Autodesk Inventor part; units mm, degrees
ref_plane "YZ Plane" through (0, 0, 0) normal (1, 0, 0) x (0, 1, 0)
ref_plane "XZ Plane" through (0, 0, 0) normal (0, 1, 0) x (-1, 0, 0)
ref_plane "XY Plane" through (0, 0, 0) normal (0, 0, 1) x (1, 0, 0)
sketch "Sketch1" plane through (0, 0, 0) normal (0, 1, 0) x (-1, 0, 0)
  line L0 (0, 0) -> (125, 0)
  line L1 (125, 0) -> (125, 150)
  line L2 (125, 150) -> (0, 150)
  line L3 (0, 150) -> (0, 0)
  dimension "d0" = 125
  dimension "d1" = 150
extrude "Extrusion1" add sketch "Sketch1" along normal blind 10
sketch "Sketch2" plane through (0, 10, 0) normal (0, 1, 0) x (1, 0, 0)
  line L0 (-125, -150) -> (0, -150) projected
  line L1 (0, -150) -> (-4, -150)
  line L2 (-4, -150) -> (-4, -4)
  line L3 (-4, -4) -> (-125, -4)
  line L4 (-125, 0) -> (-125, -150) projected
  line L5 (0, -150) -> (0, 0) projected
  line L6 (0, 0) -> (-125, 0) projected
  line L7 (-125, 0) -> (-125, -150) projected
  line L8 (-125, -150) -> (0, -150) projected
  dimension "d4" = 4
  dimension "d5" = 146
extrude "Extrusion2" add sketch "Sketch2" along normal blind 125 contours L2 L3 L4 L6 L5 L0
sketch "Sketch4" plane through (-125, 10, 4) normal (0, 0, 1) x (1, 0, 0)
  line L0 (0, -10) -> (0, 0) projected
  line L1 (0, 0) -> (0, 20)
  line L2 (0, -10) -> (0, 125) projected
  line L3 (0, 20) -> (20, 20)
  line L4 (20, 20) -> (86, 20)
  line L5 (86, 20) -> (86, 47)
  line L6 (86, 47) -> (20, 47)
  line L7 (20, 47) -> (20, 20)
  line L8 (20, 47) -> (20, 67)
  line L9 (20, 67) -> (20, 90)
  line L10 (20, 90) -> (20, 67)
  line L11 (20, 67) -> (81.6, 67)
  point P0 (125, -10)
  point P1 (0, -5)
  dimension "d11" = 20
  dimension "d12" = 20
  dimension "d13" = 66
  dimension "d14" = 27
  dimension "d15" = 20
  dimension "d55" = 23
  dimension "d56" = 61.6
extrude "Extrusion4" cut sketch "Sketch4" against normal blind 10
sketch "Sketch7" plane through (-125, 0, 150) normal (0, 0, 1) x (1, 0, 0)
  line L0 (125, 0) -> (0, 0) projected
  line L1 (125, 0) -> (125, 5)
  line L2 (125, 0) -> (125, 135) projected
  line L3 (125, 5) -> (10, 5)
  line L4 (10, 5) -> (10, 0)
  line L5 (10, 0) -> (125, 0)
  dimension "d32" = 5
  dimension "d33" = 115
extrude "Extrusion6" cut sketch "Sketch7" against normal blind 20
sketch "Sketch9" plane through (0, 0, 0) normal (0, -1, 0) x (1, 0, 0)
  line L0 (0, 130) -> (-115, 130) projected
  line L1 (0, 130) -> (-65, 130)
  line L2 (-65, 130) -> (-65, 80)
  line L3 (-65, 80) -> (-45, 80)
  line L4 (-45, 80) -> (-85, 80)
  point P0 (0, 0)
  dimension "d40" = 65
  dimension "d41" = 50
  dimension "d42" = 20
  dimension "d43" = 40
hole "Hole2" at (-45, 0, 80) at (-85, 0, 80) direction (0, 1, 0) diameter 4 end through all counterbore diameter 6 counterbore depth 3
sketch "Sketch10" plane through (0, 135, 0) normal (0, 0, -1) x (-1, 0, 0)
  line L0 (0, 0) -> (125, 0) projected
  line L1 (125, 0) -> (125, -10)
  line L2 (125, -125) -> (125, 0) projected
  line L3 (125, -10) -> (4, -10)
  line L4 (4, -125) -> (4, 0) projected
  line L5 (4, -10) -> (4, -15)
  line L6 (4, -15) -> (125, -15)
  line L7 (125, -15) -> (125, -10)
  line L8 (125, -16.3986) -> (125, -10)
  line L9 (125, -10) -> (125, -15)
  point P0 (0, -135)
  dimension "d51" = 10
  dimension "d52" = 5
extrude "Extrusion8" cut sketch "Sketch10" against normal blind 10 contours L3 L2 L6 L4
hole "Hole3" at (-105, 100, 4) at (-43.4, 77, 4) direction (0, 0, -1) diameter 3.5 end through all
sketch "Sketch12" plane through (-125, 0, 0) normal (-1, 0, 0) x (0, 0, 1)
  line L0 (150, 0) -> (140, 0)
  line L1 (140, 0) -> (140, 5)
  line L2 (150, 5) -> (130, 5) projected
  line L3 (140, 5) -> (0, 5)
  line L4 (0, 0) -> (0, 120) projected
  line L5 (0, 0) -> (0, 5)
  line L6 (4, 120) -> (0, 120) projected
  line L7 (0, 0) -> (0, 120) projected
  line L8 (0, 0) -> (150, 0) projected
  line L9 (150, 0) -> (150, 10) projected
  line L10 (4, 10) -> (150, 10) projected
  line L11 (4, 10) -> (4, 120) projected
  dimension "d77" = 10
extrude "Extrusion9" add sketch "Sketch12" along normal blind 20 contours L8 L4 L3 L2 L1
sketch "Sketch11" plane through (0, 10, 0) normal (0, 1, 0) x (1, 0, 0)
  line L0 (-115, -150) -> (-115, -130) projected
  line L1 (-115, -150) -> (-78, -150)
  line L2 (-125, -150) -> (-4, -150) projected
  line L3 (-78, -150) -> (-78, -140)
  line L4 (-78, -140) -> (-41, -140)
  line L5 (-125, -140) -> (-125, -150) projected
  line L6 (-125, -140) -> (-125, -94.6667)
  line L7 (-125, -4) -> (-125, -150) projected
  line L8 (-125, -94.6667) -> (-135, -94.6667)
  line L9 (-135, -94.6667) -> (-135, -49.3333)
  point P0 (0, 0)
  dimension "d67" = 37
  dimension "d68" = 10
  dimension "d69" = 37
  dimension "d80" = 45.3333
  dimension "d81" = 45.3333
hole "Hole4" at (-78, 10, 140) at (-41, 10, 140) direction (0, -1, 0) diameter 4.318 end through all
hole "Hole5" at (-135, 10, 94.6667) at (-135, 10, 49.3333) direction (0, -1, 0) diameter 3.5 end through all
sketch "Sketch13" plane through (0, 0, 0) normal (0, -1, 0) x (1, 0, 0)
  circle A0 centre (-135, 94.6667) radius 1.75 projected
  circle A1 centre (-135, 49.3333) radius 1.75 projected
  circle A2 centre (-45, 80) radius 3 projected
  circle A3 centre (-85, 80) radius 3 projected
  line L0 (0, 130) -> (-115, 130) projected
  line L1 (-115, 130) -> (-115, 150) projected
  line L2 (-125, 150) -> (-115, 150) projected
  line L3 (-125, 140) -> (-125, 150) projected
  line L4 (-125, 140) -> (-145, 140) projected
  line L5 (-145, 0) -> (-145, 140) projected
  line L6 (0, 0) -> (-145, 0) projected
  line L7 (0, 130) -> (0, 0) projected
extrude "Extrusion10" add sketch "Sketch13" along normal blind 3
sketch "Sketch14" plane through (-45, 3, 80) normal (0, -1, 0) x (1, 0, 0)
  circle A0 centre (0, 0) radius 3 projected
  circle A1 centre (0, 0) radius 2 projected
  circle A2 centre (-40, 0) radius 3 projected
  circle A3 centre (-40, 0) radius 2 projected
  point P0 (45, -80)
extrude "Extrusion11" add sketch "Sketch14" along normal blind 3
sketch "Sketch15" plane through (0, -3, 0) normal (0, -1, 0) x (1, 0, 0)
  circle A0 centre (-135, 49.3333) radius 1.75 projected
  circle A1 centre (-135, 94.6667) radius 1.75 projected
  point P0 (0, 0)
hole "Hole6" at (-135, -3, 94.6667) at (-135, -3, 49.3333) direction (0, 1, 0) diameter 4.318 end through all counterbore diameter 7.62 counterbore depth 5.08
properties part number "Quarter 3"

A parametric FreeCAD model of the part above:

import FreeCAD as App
import Part
import Sketcher


def add_polygon(sketch, points):
    """Adds a closed chain of lines whose ends are joined by coincident constraints."""
    first, n = sketch.GeometryCount, len(points)
    for a, b in zip(points, points[1:] + points[:1]):
        sketch.addGeometry(Part.LineSegment(App.Vector(*a, 0), App.Vector(*b, 0)), False)
    for i in range(n):
        sketch.addConstraint(Sketcher.Constraint("Coincident", first + i, 2, first + (i + 1) % n, 1))

doc = App.newDocument("Part")
body = doc.addObject("PartDesign::Body", "Body")

# Sketch on XZ plane
sketch1 = body.newObject("Sketcher::SketchObject", "Sketch")
sketch1.AttachmentSupport = (doc.getObject("XZ_Plane"), [""])
sketch1.MapMode = "FlatFace"
add_polygon(sketch1, [(0, 150), (0, 0), (-125, 0), (-125, 150)])  # lines 0-3
sketch1.addConstraint(Sketcher.Constraint("Vertical", 0))
sketch1.addConstraint(Sketcher.Constraint("Horizontal", 1))
sketch1.addConstraint(Sketcher.Constraint("Vertical", 2))
sketch1.addConstraint(Sketcher.Constraint("Horizontal", 3))
sketch1.addConstraint(Sketcher.Constraint("Coincident", 0, 2, -1, 1))
sketch1.addConstraint(Sketcher.Constraint("DistanceX", 1, 2, 1, 1, 125.0))
sketch1.addConstraint(Sketcher.Constraint("DistanceY", 0, 2, 0, 1, 150.0))
pad1 = body.newObject("PartDesign::Pad", "Pad")
pad1.Profile = sketch1
pad1.Length = 10
pad1.Reversed = True

# Sketch on XZ plane
sketch2 = body.newObject("Sketcher::SketchObject", "Sketch001")
sketch2.AttachmentSupport = (doc.getObject("XZ_Plane"), [""])
sketch2.MapMode = "FlatFace"
sketch2.AttachmentOffset = App.Placement(App.Vector(0, 0, -10), App.Rotation())
add_polygon(sketch2, [(-4, 4), (-4, 150), (0, 150), (0, 0), (-125, 0), (-125, 4)])  # lines 0-5
sketch2.addConstraint(Sketcher.Constraint("Vertical", 0))
sketch2.addConstraint(Sketcher.Constraint("Horizontal", 1))
sketch2.addConstraint(Sketcher.Constraint("Vertical", 2))
sketch2.addConstraint(Sketcher.Constraint("Horizontal", 3))
sketch2.addConstraint(Sketcher.Constraint("Vertical", 4))
sketch2.addConstraint(Sketcher.Constraint("Horizontal", 5))
sketch2.addConstraint(Sketcher.Constraint("Coincident", 2, 2, -1, 1))
sketch2.addConstraint(Sketcher.Constraint("Equal", 1, 4))
sketch2.addConstraint(Sketcher.Constraint("DistanceX", 1, 1, 1, 2, 4.0))
sketch2.addConstraint(Sketcher.Constraint("DistanceY", 0, 1, 0, 2, 146.0))
sketch2.addConstraint(Sketcher.Constraint("DistanceX", 3, 2, 3, 1, 125.0))
pad2 = body.newObject("PartDesign::Pad", "Pad001")
pad2.Profile = sketch2
pad2.Length = 125
pad2.Reversed = True

# Sketch on XY plane
sketch3 = body.newObject("Sketcher::SketchObject", "Sketch002")
sketch3.AttachmentSupport = (doc.getObject("XY_Plane"), [""])
sketch3.MapMode = "FlatFace"
sketch3.AttachmentOffset = App.Placement(App.Vector(0, 0, 4), App.Rotation())
add_polygon(sketch3, [(-105, 57), (-105, 30), (-39, 30), (-39, 57)])  # lines 0-3
sketch3.addConstraint(Sketcher.Constraint("Vertical", 0))
sketch3.addConstraint(Sketcher.Constraint("Horizontal", 1))
sketch3.addConstraint(Sketcher.Constraint("Vertical", 2))
sketch3.addConstraint(Sketcher.Constraint("Horizontal", 3))
sketch3.addConstraint(Sketcher.Constraint("DistanceX", 1, 1, 1, 2, 66.0))
sketch3.addConstraint(Sketcher.Constraint("DistanceY", 0, 2, 0, 1, 27.0))
sketch3.addConstraint(Sketcher.Constraint("DistanceX", 0, 2, -1, 1, 105.0))
sketch3.addConstraint(Sketcher.Constraint("DistanceY", -1, 1, 0, 2, 30.0))
pocket1 = body.newObject("PartDesign::Pocket", "Pocket")
pocket1.Profile = sketch3
pocket1.Length = 10

# Sketch on XY plane
sketch4 = body.newObject("Sketcher::SketchObject", "Sketch003")
sketch4.AttachmentSupport = (doc.getObject("XY_Plane"), [""])
sketch4.MapMode = "FlatFace"
sketch4.AttachmentOffset = App.Placement(App.Vector(0, 0, 150), App.Rotation())
add_polygon(sketch4, [(-115, 0), (0, 0), (0, 5), (-115, 5)])  # lines 0-3
sketch4.addConstraint(Sketcher.Constraint("Horizontal", 0))
sketch4.addConstraint(Sketcher.Constraint("Vertical", 1))
sketch4.addConstraint(Sketcher.Constraint("Horizontal", 2))
sketch4.addConstraint(Sketcher.Constraint("Vertical", 3))
sketch4.addConstraint(Sketcher.Constraint("Coincident", 0, 2, -1, 1))
sketch4.addConstraint(Sketcher.Constraint("DistanceX", 0, 1, 0, 2, 115.0))
sketch4.addConstraint(Sketcher.Constraint("DistanceY", 1, 1, 1, 2, 5.0))
pocket2 = body.newObject("PartDesign::Pocket", "Pocket001")
pocket2.Profile = sketch4
pocket2.Length = 20

# Sketch on XZ plane
sketch5 = body.newObject("Sketcher::SketchObject", "Sketch004")
sketch5.AttachmentSupport = (doc.getObject("XZ_Plane"), [""])
sketch5.MapMode = "FlatFace"
sketch5.addGeometry(Part.Circle(App.Vector(-45, 80, 0), App.Vector(0, 0, 1), 2), False)
sketch5.addGeometry(Part.Circle(App.Vector(-85, 80, 0), App.Vector(0, 0, 1), 2), False)
sketch5.addConstraint(Sketcher.Constraint("Equal", 0, 1))
sketch5.addConstraint(Sketcher.Constraint("Horizontal", 0, 3, 1, 3))
sketch5.addConstraint(Sketcher.Constraint("Diameter", 0, 4.0))
sketch5.addConstraint(Sketcher.Constraint("DistanceX", 0, 3, -1, 1, 45.0))
sketch5.addConstraint(Sketcher.Constraint("DistanceY", -1, 1, 0, 3, 80.0))
sketch5.addConstraint(Sketcher.Constraint("DistanceX", 1, 3, -1, 1, 85.0))
doc.recompute()
hole = body.newObject("PartDesign::Hole", "Hole")
hole.Profile = sketch5
hole.ThreadType = "None"
hole.Diameter = 4
hole.DepthType = "ThroughAll"
hole.HoleCutType = "Counterbore"
hole.HoleCutDiameter = 6
hole.HoleCutDepth = 3

# Sketch on XY plane
sketch6 = body.newObject("Sketcher::SketchObject", "Sketch005")
sketch6.AttachmentSupport = (doc.getObject("XY_Plane"), [""])
sketch6.MapMode = "FlatFace"
add_polygon(sketch6, [(-125, 125), (-4, 125), (-4, 120), (-125, 120)])  # lines 0-3
sketch6.addConstraint(Sketcher.Constraint("Horizontal", 0))
sketch6.addConstraint(Sketcher.Constraint("Vertical", 1))
sketch6.addConstraint(Sketcher.Constraint("Horizontal", 2))
sketch6.addConstraint(Sketcher.Constraint("Vertical", 3))
sketch6.addConstraint(Sketcher.Constraint("DistanceY", 1, 2, 1, 1, 5.0))
sketch6.addConstraint(Sketcher.Constraint("DistanceX", 0, 1, 0, 2, 121.0))
sketch6.addConstraint(Sketcher.Constraint("DistanceX", 0, 2, -1, 1, 4.0))
sketch6.addConstraint(Sketcher.Constraint("DistanceY", -1, 1, 0, 2, 125.0))
pocket3 = body.newObject("PartDesign::Pocket", "Pocket002")
pocket3.Profile = sketch6
pocket3.Length = 10
pocket3.Reversed = True

# Sketch on XY plane
sketch7 = body.newObject("Sketcher::SketchObject", "Sketch006")
sketch7.AttachmentSupport = (doc.getObject("XY_Plane"), [""])
sketch7.MapMode = "FlatFace"
sketch7.AttachmentOffset = App.Placement(App.Vector(0, 0, 4), App.Rotation())
sketch7.addGeometry(Part.Circle(App.Vector(-105, 100, 0), App.Vector(0, 0, 1), 1.8), False)
sketch7.addGeometry(Part.Circle(App.Vector(-43.4, 77, 0), App.Vector(0, 0, 1), 1.8), False)
sketch7.addConstraint(Sketcher.Constraint("Equal", 0, 1))
sketch7.addConstraint(Sketcher.Constraint("Diameter", 0, 3.5))
sketch7.addConstraint(Sketcher.Constraint("DistanceX", 0, 3, -1, 1, 105.0))
sketch7.addConstraint(Sketcher.Constraint("DistanceY", -1, 1, 0, 3, 100.0))
sketch7.addConstraint(Sketcher.Constraint("DistanceY", -1, 1, 1, 3, 77.0))
sketch7.addConstraint(Sketcher.Constraint("DistanceX", 1, 3, -1, 1, 43.4))
doc.recompute()
hole2 = body.newObject("PartDesign::Hole", "Hole001")
hole2.Profile = sketch7
hole2.ThreadType = "None"
hole2.Diameter = 3.5
hole2.DepthType = "ThroughAll"

# Sketch on YZ plane
sketch8 = body.newObject("Sketcher::SketchObject", "Sketch007")
sketch8.AttachmentSupport = (doc.getObject("YZ_Plane"), [""])
sketch8.MapMode = "FlatFace"
sketch8.AttachmentOffset = App.Placement(App.Vector(0, 0, -125), App.Rotation())
add_polygon(sketch8, [(0, 0), (0, 140), (5, 140), (5, 0)])  # lines 0-3
sketch8.addConstraint(Sketcher.Constraint("Vertical", 0))
sketch8.addConstraint(Sketcher.Constraint("Horizontal", 1))
sketch8.addConstraint(Sketcher.Constraint("Vertical", 2))
sketch8.addConstraint(Sketcher.Constraint("Horizontal", 3))
sketch8.addConstraint(Sketcher.Constraint("Coincident", 3, 2, -1, 1))
sketch8.addConstraint(Sketcher.Constraint("DistanceX", 1, 1, 1, 2, 5.0))
sketch8.addConstraint(Sketcher.Constraint("DistanceY", 0, 1, 0, 2, 140.0))
pad3 = body.newObject("PartDesign::Pad", "Pad002")
pad3.Profile = sketch8
pad3.Length = 20
pad3.Reversed = True

# Sketch on XZ plane
sketch9 = body.newObject("Sketcher::SketchObject", "Sketch008")
sketch9.AttachmentSupport = (doc.getObject("XZ_Plane"), [""])
sketch9.MapMode = "FlatFace"
sketch9.AttachmentOffset = App.Placement(App.Vector(0, 0, -10), App.Rotation())
sketch9.addGeometry(Part.Circle(App.Vector(-78, 140, 0), App.Vector(0, 0, 1), 2.2), False)
sketch9.addGeometry(Part.Circle(App.Vector(-41, 140, 0), App.Vector(0, 0, 1), 2.2), False)
sketch9.addConstraint(Sketcher.Constraint("Equal", 0, 1))
sketch9.addConstraint(Sketcher.Constraint("Horizontal", 0, 3, 1, 3))
sketch9.addConstraint(Sketcher.Constraint("Diameter", 0, 4.318))
sketch9.addConstraint(Sketcher.Constraint("DistanceX", 0, 3, -1, 1, 78.0))
sketch9.addConstraint(Sketcher.Constraint("DistanceY", -1, 1, 0, 3, 140.0))
sketch9.addConstraint(Sketcher.Constraint("DistanceX", 1, 3, -1, 1, 41.0))
doc.recompute()
hole3 = body.newObject("PartDesign::Hole", "Hole002")
hole3.Profile = sketch9
hole3.ThreadType = "None"
hole3.Diameter = 4.318
hole3.DepthType = "ThroughAll"
hole3.Reversed = True

# Sketch on XZ plane
sketch10 = body.newObject("Sketcher::SketchObject", "Sketch009")
sketch10.AttachmentSupport = (doc.getObject("XZ_Plane"), [""])
sketch10.MapMode = "FlatFace"
sketch10.AttachmentOffset = App.Placement(App.Vector(0, 0, -10), App.Rotation())
sketch10.addGeometry(Part.Circle(App.Vector(-135, 94.7, 0), App.Vector(0, 0, 1), 1.8), False)
sketch10.addGeometry(Part.Circle(App.Vector(-135, 49.3, 0), App.Vector(0, 0, 1), 1.8), False)
sketch10.addConstraint(Sketcher.Constraint("Equal", 0, 1))
sketch10.addConstraint(Sketcher.Constraint("Vertical", 0, 3, 1, 3))
sketch10.addConstraint(Sketcher.Constraint("Diameter", 0, 3.5))
sketch10.addConstraint(Sketcher.Constraint("DistanceX", 0, 3, -1, 1, 135.0))
sketch10.addConstraint(Sketcher.Constraint("DistanceY", -1, 1, 0, 3, 94.6667))
sketch10.addConstraint(Sketcher.Constraint("DistanceY", -1, 1, 1, 3, 49.3333))
doc.recompute()
hole4 = body.newObject("PartDesign::Hole", "Hole003")
hole4.Profile = sketch10
hole4.ThreadType = "None"
hole4.Diameter = 3.5
hole4.DepthType = "ThroughAll"
hole4.Reversed = True

# Sketch on XZ plane
sketch11 = body.newObject("Sketcher::SketchObject", "Sketch010")
sketch11.AttachmentSupport = (doc.getObject("XZ_Plane"), [""])
sketch11.MapMode = "FlatFace"
add_polygon(sketch11, [(0, 0), (0, 130), (-115, 130), (-115, 150), (-125, 150), (-125, 140), (-145, 140), (-145, 0)])  # lines 0-7
sketch11.addGeometry(Part.Circle(App.Vector(-135, 49.3, 0), App.Vector(0, 0, 1), 1.8), False)  # 8
sketch11.addGeometry(Part.Circle(App.Vector(-135, 94.7, 0), App.Vector(0, 0, 1), 1.8), False)  # 9
sketch11.addGeometry(Part.Circle(App.Vector(-85, 80, 0), App.Vector(0, 0, 1), 3), False)  # 10
sketch11.addGeometry(Part.Circle(App.Vector(-45, 80, 0), App.Vector(0, 0, 1), 3), False)  # 11
sketch11.addConstraint(Sketcher.Constraint("Vertical", 0))
sketch11.addConstraint(Sketcher.Constraint("Horizontal", 1))
sketch11.addConstraint(Sketcher.Constraint("Vertical", 2))
sketch11.addConstraint(Sketcher.Constraint("Horizontal", 3))
sketch11.addConstraint(Sketcher.Constraint("Vertical", 4))
sketch11.addConstraint(Sketcher.Constraint("Horizontal", 5))
sketch11.addConstraint(Sketcher.Constraint("Vertical", 6))
sketch11.addConstraint(Sketcher.Constraint("Horizontal", 7))
sketch11.addConstraint(Sketcher.Constraint("Coincident", 7, 2, -1, 1))
sketch11.addConstraint(Sketcher.Constraint("Equal", 8, 9))
sketch11.addConstraint(Sketcher.Constraint("Equal", 10, 11))
sketch11.addConstraint(Sketcher.Constraint("Horizontal", 10, 3, 11, 3))
sketch11.addConstraint(Sketcher.Constraint("Vertical", 8, 3, 9, 3))
sketch11.addConstraint(Sketcher.Constraint("Equal", 5, 2))
sketch11.addConstraint(Sketcher.Constraint("Equal", 3, 4))
sketch11.addConstraint(Sketcher.Constraint("Diameter", 10, 6.0))
sketch11.addConstraint(Sketcher.Constraint("Diameter", 8, 3.5))
sketch11.addConstraint(Sketcher.Constraint("DistanceX", 1, 2, 1, 1, 115.0))
sketch11.addConstraint(Sketcher.Constraint("DistanceX", 3, 2, 3, 1, 10.0))
sketch11.addConstraint(Sketcher.Constraint("DistanceX", 5, 2, 5, 1, 20.0))
sketch11.addConstraint(Sketcher.Constraint("DistanceY", 0, 1, 0, 2, 130.0))
sketch11.addConstraint(Sketcher.Constraint("DistanceX", 8, 3, -1, 1, 135.0))
sketch11.addConstraint(Sketcher.Constraint("DistanceX", 10, 3, -1, 1, 85.0))
sketch11.addConstraint(Sketcher.Constraint("DistanceY", -1, 1, 10, 3, 80.0))
sketch11.addConstraint(Sketcher.Constraint("DistanceX", 11, 3, -1, 1, 45.0))
sketch11.addConstraint(Sketcher.Constraint("DistanceY", -1, 1, 8, 3, 49.3333))
sketch11.addConstraint(Sketcher.Constraint("DistanceY", -1, 1, 9, 3, 94.6667))
pad4 = body.newObject("PartDesign::Pad", "Pad003")
pad4.Profile = sketch11
pad4.Length = 3

# Sketch on XZ plane
sketch12 = body.newObject("Sketcher::SketchObject", "Sketch011")
sketch12.AttachmentSupport = (doc.getObject("XZ_Plane"), [""])
sketch12.MapMode = "FlatFace"
sketch12.AttachmentOffset = App.Placement(App.Vector(0, 0, -3), App.Rotation())
sketch12.addGeometry(Part.Circle(App.Vector(-45, 80, 0), App.Vector(0, 0, 1), 3), False)
sketch12.addGeometry(Part.Circle(App.Vector(-45, 80, 0), App.Vector(0, 0, 1), 2), False)
sketch12.addGeometry(Part.Circle(App.Vector(-85, 80, 0), App.Vector(0, 0, 1), 3), False)
sketch12.addGeometry(Part.Circle(App.Vector(-85, 80, 0), App.Vector(0, 0, 1), 2), False)
sketch12.addConstraint(Sketcher.Constraint("Coincident", 1, 3, 0, 3))
sketch12.addConstraint(Sketcher.Constraint("Coincident", 3, 3, 2, 3))
sketch12.addConstraint(Sketcher.Constraint("Equal", 0, 2))
sketch12.addConstraint(Sketcher.Constraint("Equal", 1, 3))
sketch12.addConstraint(Sketcher.Constraint("Horizontal", 1, 3, 2, 3))
sketch12.addConstraint(Sketcher.Constraint("Diameter", 0, 6.0))
sketch12.addConstraint(Sketcher.Constraint("Diameter", 1, 4.0))
sketch12.addConstraint(Sketcher.Constraint("DistanceX", 0, 3, -1, 1, 45.0))
sketch12.addConstraint(Sketcher.Constraint("DistanceY", -1, 1, 0, 3, 80.0))
sketch12.addConstraint(Sketcher.Constraint("DistanceX", 2, 3, -1, 1, 85.0))
pad5 = body.newObject("PartDesign::Pad", "Pad004")
pad5.Profile = sketch12
pad5.Length = 3

# Sketch on XZ plane
sketch13 = body.newObject("Sketcher::SketchObject", "Sketch012")
sketch13.AttachmentSupport = (doc.getObject("XZ_Plane"), [""])
sketch13.MapMode = "FlatFace"
sketch13.AttachmentOffset = App.Placement(App.Vector(0, 0, 3), App.Rotation())
sketch13.addGeometry(Part.Circle(App.Vector(-135, 94.7, 0), App.Vector(0, 0, 1), 2.2), False)
sketch13.addGeometry(Part.Circle(App.Vector(-135, 49.3, 0), App.Vector(0, 0, 1), 2.2), False)
sketch13.addConstraint(Sketcher.Constraint("Equal", 0, 1))
sketch13.addConstraint(Sketcher.Constraint("Vertical", 0, 3, 1, 3))
sketch13.addConstraint(Sketcher.Constraint("Diameter", 0, 4.318))
sketch13.addConstraint(Sketcher.Constraint("DistanceX", 0, 3, -1, 1, 135.0))
sketch13.addConstraint(Sketcher.Constraint("DistanceY", -1, 1, 0, 3, 94.6667))
sketch13.addConstraint(Sketcher.Constraint("DistanceY", -1, 1, 1, 3, 49.3333))
doc.recompute()
hole5 = body.newObject("PartDesign::Hole", "Hole004")
hole5.Profile = sketch13
hole5.ThreadType = "None"
hole5.Diameter = 4.318
hole5.DepthType = "ThroughAll"
hole5.HoleCutType = "Counterbore"
hole5.HoleCutDiameter = 7.62
hole5.HoleCutDepth = 5.08

doc.recompute()
